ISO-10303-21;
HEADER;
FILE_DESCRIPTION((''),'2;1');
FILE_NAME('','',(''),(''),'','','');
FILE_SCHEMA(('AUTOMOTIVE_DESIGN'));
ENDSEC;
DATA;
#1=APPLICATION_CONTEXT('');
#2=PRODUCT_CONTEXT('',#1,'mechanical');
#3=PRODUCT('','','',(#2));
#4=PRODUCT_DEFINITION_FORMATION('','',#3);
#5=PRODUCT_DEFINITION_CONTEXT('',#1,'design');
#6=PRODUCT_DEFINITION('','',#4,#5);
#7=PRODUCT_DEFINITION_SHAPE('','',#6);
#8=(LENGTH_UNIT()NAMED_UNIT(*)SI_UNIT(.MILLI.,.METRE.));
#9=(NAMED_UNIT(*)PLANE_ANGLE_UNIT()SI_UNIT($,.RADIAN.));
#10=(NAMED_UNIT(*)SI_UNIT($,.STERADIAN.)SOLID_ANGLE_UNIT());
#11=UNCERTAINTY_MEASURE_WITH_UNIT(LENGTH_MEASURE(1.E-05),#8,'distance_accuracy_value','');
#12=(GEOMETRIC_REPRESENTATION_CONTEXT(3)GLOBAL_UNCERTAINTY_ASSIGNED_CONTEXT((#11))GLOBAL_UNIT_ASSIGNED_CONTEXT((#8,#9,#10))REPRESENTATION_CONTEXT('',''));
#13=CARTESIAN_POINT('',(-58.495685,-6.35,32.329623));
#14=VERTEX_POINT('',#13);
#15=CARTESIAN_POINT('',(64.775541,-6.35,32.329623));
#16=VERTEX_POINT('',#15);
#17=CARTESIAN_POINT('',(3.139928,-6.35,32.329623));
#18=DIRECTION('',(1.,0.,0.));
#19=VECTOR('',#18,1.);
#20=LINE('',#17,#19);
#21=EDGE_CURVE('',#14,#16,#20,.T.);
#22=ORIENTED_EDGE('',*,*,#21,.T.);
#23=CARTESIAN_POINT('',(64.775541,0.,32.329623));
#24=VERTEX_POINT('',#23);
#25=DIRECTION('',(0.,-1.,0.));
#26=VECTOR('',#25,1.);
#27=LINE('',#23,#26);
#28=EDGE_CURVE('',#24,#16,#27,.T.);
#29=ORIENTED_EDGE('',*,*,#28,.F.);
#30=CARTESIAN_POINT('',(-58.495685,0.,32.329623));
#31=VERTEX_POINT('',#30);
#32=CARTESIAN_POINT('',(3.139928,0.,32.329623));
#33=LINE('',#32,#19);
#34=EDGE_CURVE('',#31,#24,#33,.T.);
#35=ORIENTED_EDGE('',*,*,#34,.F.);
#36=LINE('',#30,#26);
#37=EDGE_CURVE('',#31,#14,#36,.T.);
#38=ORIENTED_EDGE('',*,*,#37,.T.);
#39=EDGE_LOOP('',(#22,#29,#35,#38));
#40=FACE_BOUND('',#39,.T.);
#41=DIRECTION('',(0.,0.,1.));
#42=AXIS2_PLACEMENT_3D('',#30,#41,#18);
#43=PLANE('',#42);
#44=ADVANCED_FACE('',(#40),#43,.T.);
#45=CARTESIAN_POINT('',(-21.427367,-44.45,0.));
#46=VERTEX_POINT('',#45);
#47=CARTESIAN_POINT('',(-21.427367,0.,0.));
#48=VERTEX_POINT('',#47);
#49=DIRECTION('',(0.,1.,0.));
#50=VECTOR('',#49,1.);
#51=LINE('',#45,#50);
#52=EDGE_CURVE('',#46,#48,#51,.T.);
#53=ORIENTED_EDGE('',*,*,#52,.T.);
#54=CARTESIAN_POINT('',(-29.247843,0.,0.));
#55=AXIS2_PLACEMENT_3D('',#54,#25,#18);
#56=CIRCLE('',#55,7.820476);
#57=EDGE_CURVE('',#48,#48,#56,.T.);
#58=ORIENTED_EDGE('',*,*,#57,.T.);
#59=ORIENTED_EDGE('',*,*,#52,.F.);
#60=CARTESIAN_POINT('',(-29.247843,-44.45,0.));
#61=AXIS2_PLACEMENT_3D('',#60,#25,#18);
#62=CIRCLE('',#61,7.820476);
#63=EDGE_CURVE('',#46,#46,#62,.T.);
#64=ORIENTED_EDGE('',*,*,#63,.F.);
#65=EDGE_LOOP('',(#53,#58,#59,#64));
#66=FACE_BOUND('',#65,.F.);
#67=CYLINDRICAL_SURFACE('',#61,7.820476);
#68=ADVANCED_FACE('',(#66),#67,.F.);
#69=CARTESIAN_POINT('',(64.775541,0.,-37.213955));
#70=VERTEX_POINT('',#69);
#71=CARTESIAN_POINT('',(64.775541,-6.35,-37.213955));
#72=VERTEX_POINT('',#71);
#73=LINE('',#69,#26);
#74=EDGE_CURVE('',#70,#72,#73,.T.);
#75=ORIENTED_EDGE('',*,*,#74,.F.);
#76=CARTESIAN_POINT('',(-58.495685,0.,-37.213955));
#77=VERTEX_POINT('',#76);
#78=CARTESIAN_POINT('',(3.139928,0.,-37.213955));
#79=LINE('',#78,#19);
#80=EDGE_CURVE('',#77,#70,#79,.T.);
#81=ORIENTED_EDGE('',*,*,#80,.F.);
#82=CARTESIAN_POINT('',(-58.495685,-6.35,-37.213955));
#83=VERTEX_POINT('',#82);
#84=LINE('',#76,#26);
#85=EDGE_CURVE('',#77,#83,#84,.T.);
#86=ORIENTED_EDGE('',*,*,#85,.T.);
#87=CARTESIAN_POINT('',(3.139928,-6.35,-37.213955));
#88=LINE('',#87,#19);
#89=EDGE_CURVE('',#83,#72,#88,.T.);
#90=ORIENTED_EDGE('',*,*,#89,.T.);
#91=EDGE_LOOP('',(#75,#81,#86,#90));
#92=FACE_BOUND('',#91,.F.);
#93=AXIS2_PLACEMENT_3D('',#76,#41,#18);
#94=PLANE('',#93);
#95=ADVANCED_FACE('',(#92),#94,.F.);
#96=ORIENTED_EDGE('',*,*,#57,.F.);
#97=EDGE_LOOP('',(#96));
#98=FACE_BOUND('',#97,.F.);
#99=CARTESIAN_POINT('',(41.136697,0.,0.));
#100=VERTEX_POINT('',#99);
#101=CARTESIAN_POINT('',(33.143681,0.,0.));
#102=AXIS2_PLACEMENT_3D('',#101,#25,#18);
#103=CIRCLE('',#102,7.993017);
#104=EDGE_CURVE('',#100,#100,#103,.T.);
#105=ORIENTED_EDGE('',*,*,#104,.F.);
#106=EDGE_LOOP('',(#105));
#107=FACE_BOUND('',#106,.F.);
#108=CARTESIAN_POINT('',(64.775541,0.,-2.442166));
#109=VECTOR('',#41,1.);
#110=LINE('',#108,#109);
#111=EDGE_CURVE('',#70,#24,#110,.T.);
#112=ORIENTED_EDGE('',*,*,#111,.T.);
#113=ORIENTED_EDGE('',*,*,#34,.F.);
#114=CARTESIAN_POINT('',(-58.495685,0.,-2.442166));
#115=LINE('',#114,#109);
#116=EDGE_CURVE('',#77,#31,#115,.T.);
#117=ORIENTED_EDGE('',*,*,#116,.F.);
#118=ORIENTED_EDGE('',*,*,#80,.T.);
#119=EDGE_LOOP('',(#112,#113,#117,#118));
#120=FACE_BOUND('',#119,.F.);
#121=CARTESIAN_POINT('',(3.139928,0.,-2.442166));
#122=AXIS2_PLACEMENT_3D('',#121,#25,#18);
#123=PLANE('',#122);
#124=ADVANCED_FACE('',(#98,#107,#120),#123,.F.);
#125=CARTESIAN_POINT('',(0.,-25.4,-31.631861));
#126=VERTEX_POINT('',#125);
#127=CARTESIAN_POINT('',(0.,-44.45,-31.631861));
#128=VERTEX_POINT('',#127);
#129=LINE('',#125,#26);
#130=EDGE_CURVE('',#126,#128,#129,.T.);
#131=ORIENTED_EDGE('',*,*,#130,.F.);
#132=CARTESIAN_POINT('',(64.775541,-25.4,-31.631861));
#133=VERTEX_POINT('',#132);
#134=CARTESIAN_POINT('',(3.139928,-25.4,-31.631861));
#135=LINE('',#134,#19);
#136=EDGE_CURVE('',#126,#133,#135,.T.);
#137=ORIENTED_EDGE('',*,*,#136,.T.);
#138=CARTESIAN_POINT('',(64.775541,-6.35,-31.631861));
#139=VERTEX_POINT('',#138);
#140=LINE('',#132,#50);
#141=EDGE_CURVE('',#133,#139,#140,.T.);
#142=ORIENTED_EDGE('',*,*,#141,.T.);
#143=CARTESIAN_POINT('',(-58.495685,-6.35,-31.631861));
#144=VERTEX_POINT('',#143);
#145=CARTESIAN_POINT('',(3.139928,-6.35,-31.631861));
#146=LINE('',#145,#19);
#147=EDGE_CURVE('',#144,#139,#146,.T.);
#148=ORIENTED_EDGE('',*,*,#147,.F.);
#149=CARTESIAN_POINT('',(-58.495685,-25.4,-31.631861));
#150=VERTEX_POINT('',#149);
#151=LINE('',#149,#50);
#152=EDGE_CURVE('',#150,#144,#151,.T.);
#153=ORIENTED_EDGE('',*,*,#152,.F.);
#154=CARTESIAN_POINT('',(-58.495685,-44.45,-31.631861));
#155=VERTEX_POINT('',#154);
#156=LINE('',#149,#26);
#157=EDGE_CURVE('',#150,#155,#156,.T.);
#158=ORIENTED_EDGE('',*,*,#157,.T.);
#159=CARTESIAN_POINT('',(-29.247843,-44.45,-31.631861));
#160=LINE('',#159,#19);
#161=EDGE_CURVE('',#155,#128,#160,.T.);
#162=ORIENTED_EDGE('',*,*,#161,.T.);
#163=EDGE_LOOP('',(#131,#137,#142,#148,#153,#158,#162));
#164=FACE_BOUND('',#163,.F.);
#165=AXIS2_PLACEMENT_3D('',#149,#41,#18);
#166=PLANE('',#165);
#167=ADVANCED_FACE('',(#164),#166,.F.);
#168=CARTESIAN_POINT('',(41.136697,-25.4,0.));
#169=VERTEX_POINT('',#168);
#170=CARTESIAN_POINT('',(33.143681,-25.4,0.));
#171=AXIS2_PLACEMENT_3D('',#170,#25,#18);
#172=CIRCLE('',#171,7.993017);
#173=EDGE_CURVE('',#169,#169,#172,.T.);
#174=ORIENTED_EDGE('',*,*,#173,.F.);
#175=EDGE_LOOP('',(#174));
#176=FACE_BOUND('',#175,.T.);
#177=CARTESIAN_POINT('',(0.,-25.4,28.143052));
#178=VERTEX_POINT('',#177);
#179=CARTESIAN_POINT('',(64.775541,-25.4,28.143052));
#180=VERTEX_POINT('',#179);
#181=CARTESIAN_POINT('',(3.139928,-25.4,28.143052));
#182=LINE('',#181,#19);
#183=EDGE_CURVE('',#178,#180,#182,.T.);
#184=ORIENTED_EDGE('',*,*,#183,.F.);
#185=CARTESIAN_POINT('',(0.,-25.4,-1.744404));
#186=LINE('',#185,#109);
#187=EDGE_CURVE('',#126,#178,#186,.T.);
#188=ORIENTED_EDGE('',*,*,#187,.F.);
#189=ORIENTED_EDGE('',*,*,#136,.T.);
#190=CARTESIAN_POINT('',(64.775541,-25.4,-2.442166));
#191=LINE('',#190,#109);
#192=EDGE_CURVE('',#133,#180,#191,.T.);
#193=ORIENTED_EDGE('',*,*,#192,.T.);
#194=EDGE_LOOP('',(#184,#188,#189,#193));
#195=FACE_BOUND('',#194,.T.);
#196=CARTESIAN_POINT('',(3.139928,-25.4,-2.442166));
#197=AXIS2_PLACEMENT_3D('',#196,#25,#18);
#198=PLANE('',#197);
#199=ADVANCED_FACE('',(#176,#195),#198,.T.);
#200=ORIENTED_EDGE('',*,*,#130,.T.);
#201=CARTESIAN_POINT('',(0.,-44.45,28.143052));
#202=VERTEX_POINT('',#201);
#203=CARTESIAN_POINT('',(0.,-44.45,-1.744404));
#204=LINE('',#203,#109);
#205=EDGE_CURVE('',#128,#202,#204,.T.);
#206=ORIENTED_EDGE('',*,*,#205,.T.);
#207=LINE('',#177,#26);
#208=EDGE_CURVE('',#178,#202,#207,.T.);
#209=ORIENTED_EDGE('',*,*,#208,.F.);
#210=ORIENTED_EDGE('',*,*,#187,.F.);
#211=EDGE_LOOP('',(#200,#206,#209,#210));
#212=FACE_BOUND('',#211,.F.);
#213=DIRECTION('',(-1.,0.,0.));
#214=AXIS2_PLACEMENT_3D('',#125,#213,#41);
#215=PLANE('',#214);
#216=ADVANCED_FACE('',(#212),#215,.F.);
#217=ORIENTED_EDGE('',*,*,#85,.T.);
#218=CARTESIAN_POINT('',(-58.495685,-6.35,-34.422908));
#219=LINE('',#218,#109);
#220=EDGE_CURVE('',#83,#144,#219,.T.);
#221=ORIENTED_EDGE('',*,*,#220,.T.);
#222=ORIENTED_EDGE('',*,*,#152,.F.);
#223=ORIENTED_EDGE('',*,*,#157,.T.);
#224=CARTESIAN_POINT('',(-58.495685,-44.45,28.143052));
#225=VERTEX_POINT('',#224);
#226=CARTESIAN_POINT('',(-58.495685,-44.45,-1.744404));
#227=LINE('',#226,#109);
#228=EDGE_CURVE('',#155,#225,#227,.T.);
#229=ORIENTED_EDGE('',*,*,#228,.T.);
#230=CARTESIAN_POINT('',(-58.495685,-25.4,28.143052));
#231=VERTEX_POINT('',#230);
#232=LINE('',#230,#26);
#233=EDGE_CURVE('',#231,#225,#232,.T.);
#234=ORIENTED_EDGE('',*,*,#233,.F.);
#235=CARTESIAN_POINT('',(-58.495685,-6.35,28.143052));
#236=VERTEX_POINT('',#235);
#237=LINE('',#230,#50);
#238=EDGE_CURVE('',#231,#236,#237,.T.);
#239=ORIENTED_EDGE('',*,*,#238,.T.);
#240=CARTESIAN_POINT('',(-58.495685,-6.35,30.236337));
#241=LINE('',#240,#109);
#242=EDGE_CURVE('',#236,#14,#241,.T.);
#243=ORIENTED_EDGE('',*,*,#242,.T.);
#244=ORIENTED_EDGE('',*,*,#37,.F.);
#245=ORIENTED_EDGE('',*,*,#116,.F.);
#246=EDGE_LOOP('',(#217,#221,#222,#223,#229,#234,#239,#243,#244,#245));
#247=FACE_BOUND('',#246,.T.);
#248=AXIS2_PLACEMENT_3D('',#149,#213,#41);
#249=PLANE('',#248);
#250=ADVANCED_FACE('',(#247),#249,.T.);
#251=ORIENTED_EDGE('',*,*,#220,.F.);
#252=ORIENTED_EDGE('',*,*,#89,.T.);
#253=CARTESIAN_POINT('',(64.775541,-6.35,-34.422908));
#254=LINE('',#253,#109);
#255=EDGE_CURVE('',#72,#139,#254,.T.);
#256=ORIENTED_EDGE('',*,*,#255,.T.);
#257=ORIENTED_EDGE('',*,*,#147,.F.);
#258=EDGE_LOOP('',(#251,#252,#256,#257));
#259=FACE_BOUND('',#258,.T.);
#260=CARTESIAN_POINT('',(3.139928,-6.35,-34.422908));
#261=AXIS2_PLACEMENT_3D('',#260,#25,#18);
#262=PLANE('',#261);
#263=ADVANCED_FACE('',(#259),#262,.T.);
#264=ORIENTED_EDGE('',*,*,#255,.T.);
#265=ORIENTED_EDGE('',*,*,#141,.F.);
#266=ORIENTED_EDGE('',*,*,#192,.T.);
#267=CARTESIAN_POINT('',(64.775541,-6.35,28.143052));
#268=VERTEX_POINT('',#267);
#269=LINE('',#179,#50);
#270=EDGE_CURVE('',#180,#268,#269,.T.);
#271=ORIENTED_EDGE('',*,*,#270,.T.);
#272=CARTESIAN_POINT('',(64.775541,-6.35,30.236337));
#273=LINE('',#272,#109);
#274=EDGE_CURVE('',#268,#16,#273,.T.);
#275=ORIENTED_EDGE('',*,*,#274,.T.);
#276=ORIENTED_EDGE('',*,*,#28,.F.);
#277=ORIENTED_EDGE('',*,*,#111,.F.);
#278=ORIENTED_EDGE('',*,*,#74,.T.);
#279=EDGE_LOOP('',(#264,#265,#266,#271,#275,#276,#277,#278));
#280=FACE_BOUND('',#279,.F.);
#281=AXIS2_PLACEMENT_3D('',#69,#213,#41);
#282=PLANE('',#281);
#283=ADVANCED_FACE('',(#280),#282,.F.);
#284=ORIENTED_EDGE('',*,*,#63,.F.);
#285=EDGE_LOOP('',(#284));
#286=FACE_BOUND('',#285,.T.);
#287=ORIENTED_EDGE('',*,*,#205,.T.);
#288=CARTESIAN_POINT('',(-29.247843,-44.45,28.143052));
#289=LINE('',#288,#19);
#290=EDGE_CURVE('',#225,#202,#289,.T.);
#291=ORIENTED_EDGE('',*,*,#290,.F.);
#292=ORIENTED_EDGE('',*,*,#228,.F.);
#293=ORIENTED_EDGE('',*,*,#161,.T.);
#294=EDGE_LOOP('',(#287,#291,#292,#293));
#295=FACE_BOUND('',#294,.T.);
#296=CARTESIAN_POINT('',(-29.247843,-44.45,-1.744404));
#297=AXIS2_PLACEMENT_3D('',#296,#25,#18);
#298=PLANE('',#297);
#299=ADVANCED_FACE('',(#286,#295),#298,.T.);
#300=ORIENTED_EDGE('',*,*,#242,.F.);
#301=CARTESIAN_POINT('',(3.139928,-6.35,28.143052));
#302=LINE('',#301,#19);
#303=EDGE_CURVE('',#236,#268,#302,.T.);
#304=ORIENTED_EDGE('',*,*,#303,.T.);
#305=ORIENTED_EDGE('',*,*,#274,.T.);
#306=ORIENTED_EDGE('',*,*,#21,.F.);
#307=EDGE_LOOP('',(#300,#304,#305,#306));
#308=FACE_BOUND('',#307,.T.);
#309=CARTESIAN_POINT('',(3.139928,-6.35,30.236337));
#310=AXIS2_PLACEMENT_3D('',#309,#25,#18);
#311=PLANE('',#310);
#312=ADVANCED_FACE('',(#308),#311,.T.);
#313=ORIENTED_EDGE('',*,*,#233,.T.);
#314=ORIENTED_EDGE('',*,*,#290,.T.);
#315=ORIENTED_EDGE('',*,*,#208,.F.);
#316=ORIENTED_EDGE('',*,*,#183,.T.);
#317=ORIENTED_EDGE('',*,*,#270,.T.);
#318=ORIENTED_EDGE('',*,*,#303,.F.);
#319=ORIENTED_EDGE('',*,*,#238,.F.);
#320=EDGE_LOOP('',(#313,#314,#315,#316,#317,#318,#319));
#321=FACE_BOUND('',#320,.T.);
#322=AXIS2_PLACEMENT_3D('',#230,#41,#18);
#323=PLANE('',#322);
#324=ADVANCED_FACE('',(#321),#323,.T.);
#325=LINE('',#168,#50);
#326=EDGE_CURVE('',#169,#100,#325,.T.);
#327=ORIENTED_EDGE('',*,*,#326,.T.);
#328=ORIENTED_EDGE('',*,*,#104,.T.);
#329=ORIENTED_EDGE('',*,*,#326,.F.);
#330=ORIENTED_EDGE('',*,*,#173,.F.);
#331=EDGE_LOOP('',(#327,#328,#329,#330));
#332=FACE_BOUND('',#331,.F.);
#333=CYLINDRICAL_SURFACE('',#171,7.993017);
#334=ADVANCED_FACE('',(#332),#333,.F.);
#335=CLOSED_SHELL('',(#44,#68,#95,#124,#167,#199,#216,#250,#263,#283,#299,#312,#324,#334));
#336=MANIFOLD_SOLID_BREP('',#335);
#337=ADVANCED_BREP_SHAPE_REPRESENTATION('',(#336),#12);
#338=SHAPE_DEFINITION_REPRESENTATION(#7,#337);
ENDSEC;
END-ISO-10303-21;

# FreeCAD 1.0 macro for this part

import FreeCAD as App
import Part
import Sketcher
Q = App.Units.Quantity

doc = App.newDocument("Part")
body = doc.addObject("PartDesign::Body", "Body")

sketch1 = doc.addObject("Sketcher::SketchObject", "Sketch")
body.addObject(sketch1)
sketch1.AttachmentSupport = (doc.XZ_Plane, [""])
sketch1.MapMode = "FlatFace"
sketch1.addGeometry(Part.LineSegment(App.Vector(-58.495685, 32.329623, 0), App.Vector(-58.495685, -37.213955, 0)), False)
sketch1.addGeometry(Part.LineSegment(App.Vector(-58.495685, -37.213955, 0), App.Vector(64.775541, -37.213955, 0)), False)
sketch1.addGeometry(Part.LineSegment(App.Vector(64.775541, -37.213955, 0), App.Vector(64.775541, 32.329623, 0)), False)
sketch1.addGeometry(Part.LineSegment(App.Vector(64.775541, 32.329623, 0), App.Vector(-58.495685, 32.329623, 0)), False)
sketch1.addConstraint(Sketcher.Constraint("Coincident", 0, 2, 1, 1))
sketch1.addConstraint(Sketcher.Constraint("Coincident", 1, 2, 2, 1))
sketch1.addConstraint(Sketcher.Constraint("Coincident", 2, 2, 3, 1))
sketch1.addConstraint(Sketcher.Constraint("Coincident", 3, 2, 0, 1))
sketch1.addConstraint(Sketcher.Constraint("Vertical", 0))
sketch1.addConstraint(Sketcher.Constraint("Horizontal", 1))
sketch1.addConstraint(Sketcher.Constraint("Vertical", 2))
sketch1.addConstraint(Sketcher.Constraint("Horizontal", 3))
sketch1.addConstraint(Sketcher.Constraint("DistanceX", 1, 1, 1, 2, Q("123.271227 mm")))
sketch1.addConstraint(Sketcher.Constraint("DistanceY", 0, 2, 0, 1, Q("69.543578 mm")))
sketch1.addConstraint(Sketcher.Constraint("DistanceX", -1, 1, 1, 2, Q("64.775541 mm")))
sketch1.addConstraint(Sketcher.Constraint("DistanceY", 0, 2, -1, 1, Q("37.213955 mm")))
pad1 = doc.addObject("PartDesign::Pad", "Pad")
body.addObject(pad1)
pad1.Profile = sketch1
pad1.Length = Q("1 in")

sketch2 = doc.addObject("Sketcher::SketchObject", "Sketch001")
body.addObject(sketch2)
sketch2.AttachmentSupport = (doc.XZ_Plane, [""])
sketch2.MapMode = "FlatFace"
sketch2.AttachmentOffset = App.Placement(App.Vector(0, 0, 1 * 25.4), App.Rotation())
sketch2.addGeometry(Part.LineSegment(App.Vector(-58.495685, 32.329623, 0), App.Vector(-58.495685, 28.143052, 0)), False)
sketch2.addGeometry(Part.LineSegment(App.Vector(-58.495685, 28.143052, 0), App.Vector(64.775541, 28.143052, 0)), False)
sketch2.addGeometry(Part.LineSegment(App.Vector(64.775541, 28.143052, 0), App.Vector(64.775541, 32.329623, 0)), False)
sketch2.addGeometry(Part.LineSegment(App.Vector(64.775541, 32.329623, 0), App.Vector(-58.495685, 32.329623, 0)), False)
sketch2.addGeometry(Part.LineSegment(App.Vector(-58.495685, -31.631861, 0), App.Vector(-58.495685, -37.213955, 0)), False)
sketch2.addGeometry(Part.LineSegment(App.Vector(-58.495685, -37.213955, 0), App.Vector(64.775541, -37.213955, 0)), False)
sketch2.addGeometry(Part.LineSegment(App.Vector(64.775541, -37.213955, 0), App.Vector(64.775541, -31.631861, 0)), False)
sketch2.addGeometry(Part.LineSegment(App.Vector(64.775541, -31.631861, 0), App.Vector(-58.495685, -31.631861, 0)), False)
sketch2.addConstraint(Sketcher.Constraint("Coincident", 0, 2, 1, 1))
sketch2.addConstraint(Sketcher.Constraint("Coincident", 1, 2, 2, 1))
sketch2.addConstraint(Sketcher.Constraint("Coincident", 2, 2, 3, 1))
sketch2.addConstraint(Sketcher.Constraint("Coincident", 3, 2, 0, 1))
sketch2.addConstraint(Sketcher.Constraint("Coincident", 4, 2, 5, 1))
sketch2.addConstraint(Sketcher.Constraint("Coincident", 5, 2, 6, 1))
sketch2.addConstraint(Sketcher.Constraint("Coincident", 6, 2, 7, 1))
sketch2.addConstraint(Sketcher.Constraint("Coincident", 7, 2, 4, 1))
sketch2.addConstraint(Sketcher.Constraint("Vertical", 0))
sketch2.addConstraint(Sketcher.Constraint("Horizontal", 1))
sketch2.addConstraint(Sketcher.Constraint("Vertical", 2))
sketch2.addConstraint(Sketcher.Constraint("Horizontal", 3))
sketch2.addConstraint(Sketcher.Constraint("Vertical", 4))
sketch2.addConstraint(Sketcher.Constraint("Horizontal", 5))
sketch2.addConstraint(Sketcher.Constraint("Vertical", 6))
sketch2.addConstraint(Sketcher.Constraint("Horizontal", 7))
sketch2.addConstraint(Sketcher.Constraint("Vertical", 3, 2, 4, 2))
sketch2.addConstraint(Sketcher.Constraint("Vertical", 2, 2, 5, 2))
sketch2.addConstraint(Sketcher.Constraint("DistanceY", 0, 2, 0, 1, Q("4.186571 mm")))
sketch2.addConstraint(Sketcher.Constraint("DistanceX", 1, 1, 1, 2, Q("123.271227 mm")))
sketch2.addConstraint(Sketcher.Constraint("DistanceY", 4, 2, 4, 1, Q("5.582094 mm")))
sketch2.addConstraint(Sketcher.Constraint("DistanceX", -1, 1, 1, 2, Q("64.775541 mm")))
sketch2.addConstraint(Sketcher.Constraint("DistanceY", 6, 2, -1, 1, Q("31.631861 mm")))
sketch2.addConstraint(Sketcher.Constraint("DistanceY", -1, 1, 0, 2, Q("28.143052 mm")))
pocket1 = doc.addObject("PartDesign::Pocket", "Pocket")
body.addObject(pocket1)
pocket1.Profile = sketch2
pocket1.Length = Q("0.75 in")

sketch3 = doc.addObject("Sketcher::SketchObject", "Sketch002")
body.addObject(sketch3)
sketch3.AttachmentSupport = (doc.XZ_Plane, [""])
sketch3.MapMode = "FlatFace"
sketch3.AttachmentOffset = App.Placement(App.Vector(0, 0, 1 * 25.4), App.Rotation())
sketch3.addGeometry(Part.LineSegment(App.Vector(-58.495685, 28.143052, 0), App.Vector(-58.495685, -31.631861, 0)), False)
sketch3.addGeometry(Part.LineSegment(App.Vector(-58.495685, -31.631861, 0), App.Vector(0, -31.631861, 0)), False)
sketch3.addGeometry(Part.LineSegment(App.Vector(0, -31.631861, 0), App.Vector(0, 28.143052, 0)), False)
sketch3.addGeometry(Part.LineSegment(App.Vector(0, 28.143052, 0), App.Vector(-58.495685, 28.143052, 0)), False)
sketch3.addConstraint(Sketcher.Constraint("Coincident", 0, 2, 1, 1))
sketch3.addConstraint(Sketcher.Constraint("Coincident", 1, 2, 2, 1))
sketch3.addConstraint(Sketcher.Constraint("Coincident", 2, 2, 3, 1))
sketch3.addConstraint(Sketcher.Constraint("Coincident", 3, 2, 0, 1))
sketch3.addConstraint(Sketcher.Constraint("Vertical", 0))
sketch3.addConstraint(Sketcher.Constraint("Horizontal", 1))
sketch3.addConstraint(Sketcher.Constraint("Vertical", 2))
sketch3.addConstraint(Sketcher.Constraint("Horizontal", 3))
sketch3.addConstraint(Sketcher.Constraint("PointOnObject", 1, 2, -2))
sketch3.addConstraint(Sketcher.Constraint("DistanceX", 1, 1, 1, 2, Q("58.495685 mm")))
sketch3.addConstraint(Sketcher.Constraint("DistanceY", 0, 2, 0, 1, Q("59.774913 mm")))
sketch3.addConstraint(Sketcher.Constraint("DistanceY", 0, 2, -1, 1, Q("31.631861 mm")))
pad2 = doc.addObject("PartDesign::Pad", "Pad001")
body.addObject(pad2)
pad2.Profile = sketch3
pad2.Length = Q("0.75 in")

sketch4 = doc.addObject("Sketcher::SketchObject", "Sketch003")
body.addObject(sketch4)
sketch4.AttachmentSupport = (doc.XZ_Plane, [""])
sketch4.MapMode = "FlatFace"
sketch4.AttachmentOffset = App.Placement(App.Vector(0, 0, 1.75 * 25.4), App.Rotation())
sketch4.addGeometry(Part.Circle(App.Vector(-29.247843, 0, 0), App.Vector(0, 0, 1), 7.820476), False)
sketch4.addConstraint(Sketcher.Constraint("PointOnObject", 0, 3, -1))
sketch4.addConstraint(Sketcher.Constraint("Diameter", 0, Q("15.640951 mm")))
sketch4.addConstraint(Sketcher.Constraint("DistanceX", 0, 3, -1, 1, Q("29.247843 mm")))
pocket2 = doc.addObject("PartDesign::Pocket", "Pocket001")
body.addObject(pocket2)
pocket2.Profile = sketch4
pocket2.Length = Q("3.34 in")

sketch5 = doc.addObject("Sketcher::SketchObject", "Sketch004")
body.addObject(sketch5)
sketch5.AttachmentSupport = (doc.XZ_Plane, [""])
sketch5.MapMode = "FlatFace"
sketch5.AttachmentOffset = App.Placement(App.Vector(0, 0, 1 * 25.4), App.Rotation())
sketch5.addGeometry(Part.Circle(App.Vector(33.143681, 0, 0), App.Vector(0, 0, 1), 7.993017), False)
sketch5.addConstraint(Sketcher.Constraint("PointOnObject", 0, 3, -1))
sketch5.addConstraint(Sketcher.Constraint("Diameter", 0, Q("15.986034 mm")))
sketch5.addConstraint(Sketcher.Constraint("DistanceX", -1, 1, 0, 3, Q("33.143681 mm")))
pocket3 = doc.addObject("PartDesign::Pocket", "Pocket002")
body.addObject(pocket3)
pocket3.Profile = sketch5
pocket3.Length = Q("1.23 in")

doc.recompute()
